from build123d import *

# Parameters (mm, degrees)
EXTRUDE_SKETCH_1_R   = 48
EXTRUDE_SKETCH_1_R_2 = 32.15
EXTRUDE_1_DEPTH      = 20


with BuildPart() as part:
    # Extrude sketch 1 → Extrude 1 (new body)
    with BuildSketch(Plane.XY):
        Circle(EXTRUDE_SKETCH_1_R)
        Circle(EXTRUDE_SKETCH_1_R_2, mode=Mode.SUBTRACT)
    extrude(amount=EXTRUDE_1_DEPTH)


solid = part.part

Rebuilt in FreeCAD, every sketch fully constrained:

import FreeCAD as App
import Part
import Sketcher

V = App.Vector
Q = App.Units.Quantity

doc = App.newDocument("Part")
body = doc.addObject("PartDesign::Body", "Body")

sketch1 = doc.addObject("Sketcher::SketchObject", "Sketch")
body.addObject(sketch1)
sketch1.AttachmentSupport = (doc.XY_Plane, [""])
sketch1.MapMode = "FlatFace"
sketch1.addGeometry(Part.Circle(V(0, 0, 0), V(0, 0, 1), 48), False)
sketch1.addGeometry(Part.Circle(V(0, 0, 0), V(0, 0, 1), 32.15), False)
sketch1.addConstraint(Sketcher.Constraint("Coincident", 0, 3, -1, 1))
sketch1.addConstraint(Sketcher.Constraint("Coincident", 1, 3, -1, 1))
sketch1.addConstraint(Sketcher.Constraint("Diameter", 0, Q("96 mm")))
sketch1.addConstraint(Sketcher.Constraint("Diameter", 1, Q("64.3 mm")))
pad1 = doc.addObject("PartDesign::Pad", "Pad")
body.addObject(pad1)
pad1.Profile = sketch1
pad1.Length = 20

doc.recompute()
